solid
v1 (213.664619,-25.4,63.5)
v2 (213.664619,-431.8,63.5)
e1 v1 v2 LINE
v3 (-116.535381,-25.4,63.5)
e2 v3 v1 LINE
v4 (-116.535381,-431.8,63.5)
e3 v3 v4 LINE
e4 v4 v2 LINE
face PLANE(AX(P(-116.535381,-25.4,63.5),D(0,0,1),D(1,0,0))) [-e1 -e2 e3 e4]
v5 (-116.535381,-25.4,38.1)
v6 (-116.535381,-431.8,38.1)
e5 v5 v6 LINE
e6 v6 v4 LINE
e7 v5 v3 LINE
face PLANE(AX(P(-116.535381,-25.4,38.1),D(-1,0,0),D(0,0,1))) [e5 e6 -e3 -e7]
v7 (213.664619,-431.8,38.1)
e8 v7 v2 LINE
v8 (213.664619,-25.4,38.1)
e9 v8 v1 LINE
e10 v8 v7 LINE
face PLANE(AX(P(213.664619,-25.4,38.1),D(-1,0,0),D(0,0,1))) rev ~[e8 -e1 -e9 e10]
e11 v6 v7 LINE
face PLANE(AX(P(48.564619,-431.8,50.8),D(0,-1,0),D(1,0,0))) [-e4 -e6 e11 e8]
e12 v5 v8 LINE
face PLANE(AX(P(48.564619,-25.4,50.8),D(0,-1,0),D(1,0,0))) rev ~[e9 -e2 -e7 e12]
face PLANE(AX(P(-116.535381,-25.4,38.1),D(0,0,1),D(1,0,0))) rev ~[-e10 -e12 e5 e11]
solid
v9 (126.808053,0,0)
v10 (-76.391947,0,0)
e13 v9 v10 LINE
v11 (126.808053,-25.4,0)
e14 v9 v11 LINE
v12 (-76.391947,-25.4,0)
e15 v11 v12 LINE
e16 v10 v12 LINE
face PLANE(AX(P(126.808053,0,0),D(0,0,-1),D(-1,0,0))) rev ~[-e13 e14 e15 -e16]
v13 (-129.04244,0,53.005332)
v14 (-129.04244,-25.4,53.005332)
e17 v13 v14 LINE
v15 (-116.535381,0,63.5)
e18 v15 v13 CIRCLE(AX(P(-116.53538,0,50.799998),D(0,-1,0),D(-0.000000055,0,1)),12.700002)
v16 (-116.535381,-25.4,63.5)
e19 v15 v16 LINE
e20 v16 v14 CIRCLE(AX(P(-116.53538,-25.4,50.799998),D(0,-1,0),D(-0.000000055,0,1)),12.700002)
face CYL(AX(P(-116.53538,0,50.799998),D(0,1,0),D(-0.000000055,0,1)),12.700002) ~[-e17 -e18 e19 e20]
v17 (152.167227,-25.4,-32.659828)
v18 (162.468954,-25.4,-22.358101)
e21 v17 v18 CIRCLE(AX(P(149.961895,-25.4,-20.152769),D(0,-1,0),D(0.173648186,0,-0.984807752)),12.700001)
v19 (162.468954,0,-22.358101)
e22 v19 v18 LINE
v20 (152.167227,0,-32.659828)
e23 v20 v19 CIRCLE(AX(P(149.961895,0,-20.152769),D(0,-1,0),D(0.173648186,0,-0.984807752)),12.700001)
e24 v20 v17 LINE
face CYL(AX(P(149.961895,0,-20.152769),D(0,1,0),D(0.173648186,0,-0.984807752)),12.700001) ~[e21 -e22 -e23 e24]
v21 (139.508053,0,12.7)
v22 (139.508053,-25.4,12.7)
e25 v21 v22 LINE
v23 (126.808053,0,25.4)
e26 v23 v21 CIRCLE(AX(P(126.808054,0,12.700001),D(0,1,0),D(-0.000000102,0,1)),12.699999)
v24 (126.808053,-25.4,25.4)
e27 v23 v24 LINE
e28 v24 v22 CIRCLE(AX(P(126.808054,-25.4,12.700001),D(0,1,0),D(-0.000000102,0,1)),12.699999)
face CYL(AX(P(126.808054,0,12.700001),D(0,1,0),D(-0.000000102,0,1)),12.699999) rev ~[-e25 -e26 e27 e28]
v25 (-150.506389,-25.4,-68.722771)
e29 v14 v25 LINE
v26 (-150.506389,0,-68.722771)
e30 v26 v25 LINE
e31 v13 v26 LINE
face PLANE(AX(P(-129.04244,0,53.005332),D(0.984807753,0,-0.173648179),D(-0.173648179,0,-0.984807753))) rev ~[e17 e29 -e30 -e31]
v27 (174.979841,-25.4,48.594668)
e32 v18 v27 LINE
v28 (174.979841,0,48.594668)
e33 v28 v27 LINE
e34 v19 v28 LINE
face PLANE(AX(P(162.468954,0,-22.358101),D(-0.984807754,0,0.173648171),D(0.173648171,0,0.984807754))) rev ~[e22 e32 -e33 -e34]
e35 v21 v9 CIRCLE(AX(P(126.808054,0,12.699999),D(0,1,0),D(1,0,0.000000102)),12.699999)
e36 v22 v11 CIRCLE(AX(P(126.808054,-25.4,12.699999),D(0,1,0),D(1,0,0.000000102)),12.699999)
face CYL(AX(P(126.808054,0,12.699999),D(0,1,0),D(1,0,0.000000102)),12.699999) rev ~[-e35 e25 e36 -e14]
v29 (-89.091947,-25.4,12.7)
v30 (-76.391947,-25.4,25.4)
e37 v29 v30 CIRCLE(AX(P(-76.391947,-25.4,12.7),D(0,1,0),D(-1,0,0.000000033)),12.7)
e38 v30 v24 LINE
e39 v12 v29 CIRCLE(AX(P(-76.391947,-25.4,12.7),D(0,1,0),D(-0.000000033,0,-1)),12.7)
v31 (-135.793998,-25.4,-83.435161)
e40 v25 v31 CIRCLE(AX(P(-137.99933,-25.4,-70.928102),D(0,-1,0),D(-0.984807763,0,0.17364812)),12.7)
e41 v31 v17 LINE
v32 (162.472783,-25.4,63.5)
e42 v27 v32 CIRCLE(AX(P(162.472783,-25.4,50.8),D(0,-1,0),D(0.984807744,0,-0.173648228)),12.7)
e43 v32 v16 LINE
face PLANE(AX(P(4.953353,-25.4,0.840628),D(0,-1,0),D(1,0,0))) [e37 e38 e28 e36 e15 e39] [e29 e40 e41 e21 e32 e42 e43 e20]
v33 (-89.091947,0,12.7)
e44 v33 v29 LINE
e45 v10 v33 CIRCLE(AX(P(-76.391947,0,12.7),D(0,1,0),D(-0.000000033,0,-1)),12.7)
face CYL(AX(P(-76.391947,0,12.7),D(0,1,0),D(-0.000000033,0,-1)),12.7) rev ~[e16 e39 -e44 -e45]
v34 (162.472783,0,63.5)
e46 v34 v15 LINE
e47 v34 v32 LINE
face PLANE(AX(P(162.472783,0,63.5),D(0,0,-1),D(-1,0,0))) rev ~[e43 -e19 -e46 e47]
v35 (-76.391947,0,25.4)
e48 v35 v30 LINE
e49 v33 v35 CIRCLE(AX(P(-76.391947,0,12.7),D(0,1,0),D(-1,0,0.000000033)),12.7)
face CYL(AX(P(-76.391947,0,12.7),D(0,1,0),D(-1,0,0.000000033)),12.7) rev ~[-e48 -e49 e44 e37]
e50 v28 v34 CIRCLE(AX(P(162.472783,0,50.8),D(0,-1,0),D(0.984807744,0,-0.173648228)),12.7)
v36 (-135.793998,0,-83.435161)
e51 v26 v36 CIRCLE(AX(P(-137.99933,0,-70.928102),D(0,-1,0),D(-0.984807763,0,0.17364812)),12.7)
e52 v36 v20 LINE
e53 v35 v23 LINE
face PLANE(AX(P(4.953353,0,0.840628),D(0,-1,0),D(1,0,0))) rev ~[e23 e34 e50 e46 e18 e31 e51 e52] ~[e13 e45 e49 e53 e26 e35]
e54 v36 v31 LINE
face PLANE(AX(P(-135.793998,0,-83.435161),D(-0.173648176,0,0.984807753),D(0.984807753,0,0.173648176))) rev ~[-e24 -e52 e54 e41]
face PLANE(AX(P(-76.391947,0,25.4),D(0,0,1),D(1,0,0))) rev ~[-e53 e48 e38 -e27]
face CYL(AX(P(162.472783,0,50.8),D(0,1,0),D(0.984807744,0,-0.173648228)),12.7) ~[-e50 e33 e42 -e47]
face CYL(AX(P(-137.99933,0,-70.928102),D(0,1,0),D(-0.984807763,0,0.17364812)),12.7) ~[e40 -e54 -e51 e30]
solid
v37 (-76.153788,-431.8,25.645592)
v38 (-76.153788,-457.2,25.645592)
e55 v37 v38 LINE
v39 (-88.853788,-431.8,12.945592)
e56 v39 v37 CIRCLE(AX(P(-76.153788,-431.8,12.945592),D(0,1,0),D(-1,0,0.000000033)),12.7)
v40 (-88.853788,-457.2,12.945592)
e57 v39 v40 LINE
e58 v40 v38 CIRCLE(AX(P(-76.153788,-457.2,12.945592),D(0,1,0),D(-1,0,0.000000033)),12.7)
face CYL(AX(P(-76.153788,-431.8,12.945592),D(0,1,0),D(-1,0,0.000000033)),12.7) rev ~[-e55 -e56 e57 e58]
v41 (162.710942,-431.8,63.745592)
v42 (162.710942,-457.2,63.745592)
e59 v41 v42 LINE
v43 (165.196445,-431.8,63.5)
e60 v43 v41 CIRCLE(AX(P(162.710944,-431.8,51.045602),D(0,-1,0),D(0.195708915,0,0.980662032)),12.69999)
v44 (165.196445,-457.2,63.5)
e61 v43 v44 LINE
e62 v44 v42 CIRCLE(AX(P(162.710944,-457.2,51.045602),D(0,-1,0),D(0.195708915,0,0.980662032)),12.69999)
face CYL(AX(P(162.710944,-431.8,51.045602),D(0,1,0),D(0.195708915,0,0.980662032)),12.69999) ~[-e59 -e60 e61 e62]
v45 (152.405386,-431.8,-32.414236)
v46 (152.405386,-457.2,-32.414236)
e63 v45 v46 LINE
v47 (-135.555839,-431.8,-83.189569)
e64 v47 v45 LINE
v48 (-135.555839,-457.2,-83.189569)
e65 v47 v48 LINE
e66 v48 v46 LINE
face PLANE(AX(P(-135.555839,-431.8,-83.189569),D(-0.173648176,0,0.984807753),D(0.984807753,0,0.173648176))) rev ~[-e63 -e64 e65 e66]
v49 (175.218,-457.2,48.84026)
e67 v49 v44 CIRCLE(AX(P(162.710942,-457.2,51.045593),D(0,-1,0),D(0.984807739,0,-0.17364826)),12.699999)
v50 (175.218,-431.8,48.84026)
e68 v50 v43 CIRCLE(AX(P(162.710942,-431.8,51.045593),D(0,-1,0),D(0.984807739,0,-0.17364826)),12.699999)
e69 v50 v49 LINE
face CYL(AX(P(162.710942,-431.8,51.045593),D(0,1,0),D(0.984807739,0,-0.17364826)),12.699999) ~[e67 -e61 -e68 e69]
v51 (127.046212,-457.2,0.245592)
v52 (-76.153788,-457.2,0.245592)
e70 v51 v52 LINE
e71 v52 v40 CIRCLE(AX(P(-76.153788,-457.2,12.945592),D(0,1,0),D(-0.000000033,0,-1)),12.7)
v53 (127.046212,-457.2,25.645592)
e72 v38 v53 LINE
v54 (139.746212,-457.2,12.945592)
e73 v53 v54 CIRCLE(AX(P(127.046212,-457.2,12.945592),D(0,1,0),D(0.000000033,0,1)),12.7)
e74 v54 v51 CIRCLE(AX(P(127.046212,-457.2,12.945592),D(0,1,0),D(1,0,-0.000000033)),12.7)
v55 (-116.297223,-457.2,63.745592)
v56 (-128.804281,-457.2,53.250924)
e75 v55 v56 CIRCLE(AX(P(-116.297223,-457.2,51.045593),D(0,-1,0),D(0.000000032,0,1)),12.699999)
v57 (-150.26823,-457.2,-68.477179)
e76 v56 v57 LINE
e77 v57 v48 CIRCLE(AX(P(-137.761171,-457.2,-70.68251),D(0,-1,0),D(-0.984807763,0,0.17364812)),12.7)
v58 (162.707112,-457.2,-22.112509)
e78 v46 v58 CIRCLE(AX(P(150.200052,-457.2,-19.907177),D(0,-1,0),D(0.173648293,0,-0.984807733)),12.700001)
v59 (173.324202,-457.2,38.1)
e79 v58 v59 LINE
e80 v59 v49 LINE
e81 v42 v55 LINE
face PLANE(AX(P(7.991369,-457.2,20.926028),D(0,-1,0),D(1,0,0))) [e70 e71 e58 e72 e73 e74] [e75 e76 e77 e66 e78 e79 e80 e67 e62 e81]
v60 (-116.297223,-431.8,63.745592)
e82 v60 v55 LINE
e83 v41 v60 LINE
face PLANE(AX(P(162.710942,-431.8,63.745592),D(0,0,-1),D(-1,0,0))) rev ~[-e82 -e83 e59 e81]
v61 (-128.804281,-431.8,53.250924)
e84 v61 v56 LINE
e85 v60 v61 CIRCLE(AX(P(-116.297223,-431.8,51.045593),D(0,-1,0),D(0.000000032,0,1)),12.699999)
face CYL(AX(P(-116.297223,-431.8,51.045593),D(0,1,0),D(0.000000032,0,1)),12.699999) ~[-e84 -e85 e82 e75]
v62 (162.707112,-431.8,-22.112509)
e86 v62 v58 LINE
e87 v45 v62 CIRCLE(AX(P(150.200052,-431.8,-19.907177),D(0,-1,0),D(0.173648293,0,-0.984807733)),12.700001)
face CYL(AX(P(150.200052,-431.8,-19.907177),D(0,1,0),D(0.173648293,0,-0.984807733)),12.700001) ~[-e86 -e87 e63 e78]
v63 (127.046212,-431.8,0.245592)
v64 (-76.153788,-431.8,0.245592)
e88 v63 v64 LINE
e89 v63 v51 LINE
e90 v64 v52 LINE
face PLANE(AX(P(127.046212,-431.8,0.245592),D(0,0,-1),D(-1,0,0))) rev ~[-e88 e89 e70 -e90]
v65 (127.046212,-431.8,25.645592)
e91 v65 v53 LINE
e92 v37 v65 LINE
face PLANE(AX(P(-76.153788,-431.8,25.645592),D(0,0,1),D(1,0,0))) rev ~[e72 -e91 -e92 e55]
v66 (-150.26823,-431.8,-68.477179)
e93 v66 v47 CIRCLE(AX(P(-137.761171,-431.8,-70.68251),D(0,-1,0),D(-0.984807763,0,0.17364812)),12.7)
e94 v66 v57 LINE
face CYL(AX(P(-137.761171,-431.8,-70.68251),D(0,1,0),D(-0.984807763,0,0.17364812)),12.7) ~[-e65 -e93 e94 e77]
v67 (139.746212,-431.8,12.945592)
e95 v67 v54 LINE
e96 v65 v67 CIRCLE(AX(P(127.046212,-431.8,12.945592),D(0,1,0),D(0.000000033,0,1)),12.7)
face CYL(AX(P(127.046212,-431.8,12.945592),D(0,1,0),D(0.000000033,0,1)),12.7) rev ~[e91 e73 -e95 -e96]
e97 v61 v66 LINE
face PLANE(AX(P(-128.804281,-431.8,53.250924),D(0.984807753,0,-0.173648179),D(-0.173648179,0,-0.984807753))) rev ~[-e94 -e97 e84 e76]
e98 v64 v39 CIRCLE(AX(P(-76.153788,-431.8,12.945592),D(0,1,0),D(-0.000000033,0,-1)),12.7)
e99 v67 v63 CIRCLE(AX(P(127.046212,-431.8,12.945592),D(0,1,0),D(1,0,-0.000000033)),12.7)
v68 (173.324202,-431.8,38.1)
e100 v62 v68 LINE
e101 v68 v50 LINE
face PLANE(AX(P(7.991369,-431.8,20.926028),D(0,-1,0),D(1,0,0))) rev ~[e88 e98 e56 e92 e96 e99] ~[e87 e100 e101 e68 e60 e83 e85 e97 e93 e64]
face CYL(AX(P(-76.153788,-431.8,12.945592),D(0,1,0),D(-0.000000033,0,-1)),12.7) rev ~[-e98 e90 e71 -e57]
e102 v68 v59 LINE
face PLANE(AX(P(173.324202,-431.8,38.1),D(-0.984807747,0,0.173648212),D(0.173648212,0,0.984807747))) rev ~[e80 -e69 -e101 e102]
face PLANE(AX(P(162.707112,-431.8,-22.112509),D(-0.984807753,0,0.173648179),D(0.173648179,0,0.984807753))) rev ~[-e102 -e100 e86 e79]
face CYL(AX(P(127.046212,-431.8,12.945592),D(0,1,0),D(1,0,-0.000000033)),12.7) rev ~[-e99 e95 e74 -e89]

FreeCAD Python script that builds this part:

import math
import FreeCAD as App
import Part
import Sketcher

V = App.Vector
Q = App.Units.Quantity

doc = App.newDocument("Part")
body = doc.addObject("PartDesign::Body", "Body")

# Sketch on XZ plane
sketch1 = doc.addObject("Sketcher::SketchObject", "Sketch")
body.addObject(sketch1)
sketch1.AttachmentSupport = (doc.XZ_Plane, [""])
sketch1.MapMode = "FlatFace"
sketch1.addGeometry(Part.LineSegment(V(162, 64, 0), V(-117, 64, 0)), False)
sketch1.addGeometry(Part.ArcOfCircle(Part.Circle(V(-117, 51, 0), V(0, 0, 1), 13), math.radians(90), math.radians(170)), False)
sketch1.addGeometry(Part.LineSegment(V(-129, 53, 0), V(-151, -69, 0)), False)
sketch1.addGeometry(Part.ArcOfCircle(Part.Circle(V(-138, -71, 0), V(0, 0, 1), 13), math.radians(170), math.radians(280)), False)
sketch1.addGeometry(Part.LineSegment(V(-136, -83, 0), V(152, -33, 0)), False)
sketch1.addGeometry(Part.ArcOfCircle(Part.Circle(V(150, -20, 0), V(0, 0, 1), 13), math.radians(-80), math.radians(-10)), False)
sketch1.addGeometry(Part.LineSegment(V(162, -22, 0), V(175, 49, 0)), False)
sketch1.addGeometry(Part.ArcOfCircle(Part.Circle(V(162, 51, 0), V(0, 0, 1), 13), math.radians(-10), math.radians(90)), False)
sketch1.addGeometry(Part.ArcOfCircle(Part.Circle(V(-76, 13, 0), V(0, 0, 1), 13), math.radians(-180), math.radians(-90)), False)
sketch1.addGeometry(Part.ArcOfCircle(Part.Circle(V(-76, 13, 0), V(0, 0, 1), 13), math.radians(90), math.radians(180)), False)
sketch1.addGeometry(Part.LineSegment(V(-76, 25, 0), V(127, 25, 0)), False)
sketch1.addGeometry(Part.ArcOfCircle(Part.Circle(V(127, 13, 0), V(0, 0, 1), 13), math.radians(0), math.radians(90)), False)
sketch1.addGeometry(Part.ArcOfCircle(Part.Circle(V(127, 13, 0), V(0, 0, 1), 13), math.radians(-90), math.radians(0)), False)
sketch1.addGeometry(Part.LineSegment(V(127, 0, 0), V(-76, 0, 0)), False)
sketch1.addConstraint(Sketcher.Constraint("Tangent", 0, 2, 1, 1))
sketch1.addConstraint(Sketcher.Constraint("Tangent", 1, 2, 2, 1))
sketch1.addConstraint(Sketcher.Constraint("Tangent", 2, 2, 3, 1))
sketch1.addConstraint(Sketcher.Constraint("Tangent", 3, 2, 4, 1))
sketch1.addConstraint(Sketcher.Constraint("Tangent", 4, 2, 5, 1))
sketch1.addConstraint(Sketcher.Constraint("Tangent", 5, 2, 6, 1))
sketch1.addConstraint(Sketcher.Constraint("Tangent", 6, 2, 7, 1))
sketch1.addConstraint(Sketcher.Constraint("Tangent", 7, 2, 0, 1))
sketch1.addConstraint(Sketcher.Constraint("Tangent", 8, 1, 9, 2))
sketch1.addConstraint(Sketcher.Constraint("Tangent", 9, 1, 10, 1))
sketch1.addConstraint(Sketcher.Constraint("Tangent", 10, 2, 11, 2))
sketch1.addConstraint(Sketcher.Constraint("Tangent", 11, 1, 12, 2))
sketch1.addConstraint(Sketcher.Constraint("Tangent", 12, 1, 13, 1))
sketch1.addConstraint(Sketcher.Constraint("Tangent", 13, 2, 8, 2))
sketch1.addConstraint(Sketcher.Constraint("Horizontal", 0))
sketch1.addConstraint(Sketcher.Constraint("Horizontal", 10))
sketch1.addConstraint(Sketcher.Constraint("Horizontal", 13))
sketch1.addConstraint(Sketcher.Constraint("Equal", 1, 3))
sketch1.addConstraint(Sketcher.Constraint("Equal", 3, 5))
sketch1.addConstraint(Sketcher.Constraint("Equal", 5, 7))
sketch1.addConstraint(Sketcher.Constraint("Equal", 7, 8))
sketch1.addConstraint(Sketcher.Constraint("Equal", 8, 9))
sketch1.addConstraint(Sketcher.Constraint("Equal", 9, 11))
sketch1.addConstraint(Sketcher.Constraint("PointOnObject", 12, 1, -1))
sketch1.addConstraint(Sketcher.Constraint("Parallel", 2, 6))
sketch1.addConstraint(Sketcher.Constraint("Horizontal", 12, 3, 8, 1))
sketch1.addConstraint(Sketcher.Constraint("Horizontal", 8, 1, 11, 1))
sketch1.addConstraint(Sketcher.Constraint("Radius", 1, Q("0.5000001 in")))
sketch1.addConstraint(Sketcher.Constraint("DistanceX", 10, 1, 10, 2, Q("8 in")))
sketch1.addConstraint(Sketcher.Constraint("DistanceY", -1, 1, 1, 3, Q("1.9999999 in")))
sketch1.addConstraint(Sketcher.Constraint("Angle", 2, Q("-100 deg")))
sketch1.addConstraint(Sketcher.Constraint("Angle", 4, Q("10 deg")))
sketch1.addConstraint(Sketcher.Constraint("DistanceY", 5, 2, -1, 1, 22.358101))
sketch1.addConstraint(Sketcher.Constraint("DistanceY", 3, 3, 1, 3, 121.728101))
sketch1.addConstraint(Sketcher.Constraint("DistanceX", 12, 3, 5, 2, 35.6609))
sketch1.addConstraint(Sketcher.Constraint("DistanceX", 1, 3, -1, 1, 116.53538))
pad1 = doc.addObject("PartDesign::Pad", "Pad")
body.addObject(pad1)
pad1.Profile = sketch1
pad1.Length = Q("1 in")
body2 = doc.addObject("PartDesign::Body", "Body001")

# Sketch on XZ plane
sketch2 = doc.addObject("Sketcher::SketchObject", "Sketch001")
body2.addObject(sketch2)
sketch2.AttachmentSupport = (doc.getObject("XZ_Plane001"), [""])
sketch2.MapMode = "FlatFace"
sketch2.AttachmentOffset = App.Placement(V(0, 0, 1 * 25.4), App.Rotation())
sketch2.addGeometry(Part.LineSegment(V(-117, 64, 0), V(-117, 38, 0)), False)
sketch2.addGeometry(Part.LineSegment(V(-117, 38, 0), V(214, 38, 0)), False)
sketch2.addGeometry(Part.LineSegment(V(214, 38, 0), V(214, 64, 0)), False)
sketch2.addGeometry(Part.LineSegment(V(214, 64, 0), V(-117, 64, 0)), False)
sketch2.addConstraint(Sketcher.Constraint("Coincident", 0, 2, 1, 1))
sketch2.addConstraint(Sketcher.Constraint("Coincident", 1, 2, 2, 1))
sketch2.addConstraint(Sketcher.Constraint("Coincident", 2, 2, 3, 1))
sketch2.addConstraint(Sketcher.Constraint("Coincident", 3, 2, 0, 1))
sketch2.addConstraint(Sketcher.Constraint("Vertical", 0))
sketch2.addConstraint(Sketcher.Constraint("Horizontal", 1))
sketch2.addConstraint(Sketcher.Constraint("Vertical", 2))
sketch2.addConstraint(Sketcher.Constraint("Horizontal", 3))
sketch2.addConstraint(Sketcher.Constraint("DistanceX", 1, 1, 1, 2, Q("13 in")))
sketch2.addConstraint(Sketcher.Constraint("DistanceY", 0, 2, 0, 1, Q("1 in")))
sketch2.addConstraint(Sketcher.Constraint("DistanceY", -1, 1, 0, 2, Q("1.5 in")))
sketch2.addConstraint(Sketcher.Constraint("DistanceX", 0, 2, -1, 1, 116.535381))
pad2 = doc.addObject("PartDesign::Pad", "Pad001")
body2.addObject(pad2)
pad2.Profile = sketch2
pad2.Length = Q("16 in")
body3 = doc.addObject("PartDesign::Body", "Body002")

# Sketch on XZ plane
sketch3 = doc.addObject("Sketcher::SketchObject", "Sketch002")
body3.addObject(sketch3)
sketch3.AttachmentSupport = (doc.getObject("XZ_Plane002"), [""])
sketch3.MapMode = "FlatFace"
sketch3.AttachmentOffset = App.Placement(V(0, 0, 17 * 25.4), App.Rotation())
sketch3.addGeometry(Part.LineSegment(V(162.7, 63.7, 0), V(-116.3, 63.7, 0)), False)
sketch3.addGeometry(Part.ArcOfCircle(Part.Circle(V(-116.3, 51, 0), V(0, 0, 1), 12.7), math.radians(90), math.radians(170)), False)
sketch3.addGeometry(Part.LineSegment(V(-128.8, 53.3, 0), V(-150.3, -68.5, 0)), False)
sketch3.addGeometry(Part.ArcOfCircle(Part.Circle(V(-137.8, -70.7, 0), V(0, 0, 1), 12.7), math.radians(170), math.radians(280)), False)
sketch3.addGeometry(Part.LineSegment(V(-135.6, -83.2, 0), V(152.4, -32.4, 0)), False)
sketch3.addGeometry(Part.ArcOfCircle(Part.Circle(V(150.2, -19.9, 0), V(0, 0, 1), 12.7), math.radians(-80), math.radians(-10)), False)
sketch3.addGeometry(Part.LineSegment(V(162.7, -22.1, 0), V(173.3, 38.1, 0)), False)
sketch3.addGeometry(Part.LineSegment(V(173.3, 38.1, 0), V(175.2, 48.8, 0)), False)
sketch3.addGeometry(Part.ArcOfCircle(Part.Circle(V(162.7, 51, 0), V(0, 0, 1), 12.7), math.radians(-10), math.radians(79)), False)
sketch3.addGeometry(Part.ArcOfCircle(Part.Circle(V(162.7, 51, 0), V(0, 0, 1), 12.7), math.radians(78.71), math.radians(90)), False)
sketch3.addGeometry(Part.ArcOfCircle(Part.Circle(V(-76.2, 12.9, 0), V(0, 0, 1), 12.7), math.radians(-180), math.radians(-90)), False)
sketch3.addGeometry(Part.ArcOfCircle(Part.Circle(V(-76.2, 12.9, 0), V(0, 0, 1), 12.7), math.radians(90), math.radians(180)), False)
sketch3.addGeometry(Part.LineSegment(V(-76.2, 25.6, 0), V(127, 25.6, 0)), False)
sketch3.addGeometry(Part.ArcOfCircle(Part.Circle(V(127, 12.9, 0), V(0, 0, 1), 12.7), math.radians(0), math.radians(90)), False)
sketch3.addGeometry(Part.ArcOfCircle(Part.Circle(V(127, 12.9, 0), V(0, 0, 1), 12.7), math.radians(-90), math.radians(0)), False)
sketch3.addGeometry(Part.LineSegment(V(127, 0.2, 0), V(-76.2, 0.2, 0)), False)
sketch3.addConstraint(Sketcher.Constraint("Tangent", 0, 2, 1, 1))
sketch3.addConstraint(Sketcher.Constraint("Tangent", 1, 2, 2, 1))
sketch3.addConstraint(Sketcher.Constraint("Tangent", 2, 2, 3, 1))
sketch3.addConstraint(Sketcher.Constraint("Tangent", 3, 2, 4, 1))
sketch3.addConstraint(Sketcher.Constraint("Tangent", 4, 2, 5, 1))
sketch3.addConstraint(Sketcher.Constraint("Tangent", 5, 2, 6, 1))
sketch3.addConstraint(Sketcher.Constraint("Coincident", 6, 2, 7, 1))
sketch3.addConstraint(Sketcher.Constraint("Tangent", 7, 2, 8, 1))
sketch3.addConstraint(Sketcher.Constraint("Tangent", 8, 2, 9, 1))
sketch3.addConstraint(Sketcher.Constraint("Tangent", 9, 2, 0, 1))
sketch3.addConstraint(Sketcher.Constraint("Tangent", 10, 1, 11, 2))
sketch3.addConstraint(Sketcher.Constraint("Tangent", 11, 1, 12, 1))
sketch3.addConstraint(Sketcher.Constraint("Tangent", 12, 2, 13, 2))
sketch3.addConstraint(Sketcher.Constraint("Tangent", 13, 1, 14, 2))
sketch3.addConstraint(Sketcher.Constraint("Tangent", 14, 1, 15, 1))
sketch3.addConstraint(Sketcher.Constraint("Tangent", 15, 2, 10, 2))
sketch3.addConstraint(Sketcher.Constraint("Horizontal", 0))
sketch3.addConstraint(Sketcher.Constraint("Horizontal", 12))
sketch3.addConstraint(Sketcher.Constraint("Horizontal", 15))
sketch3.addConstraint(Sketcher.Constraint("Equal", 1, 3))
sketch3.addConstraint(Sketcher.Constraint("Equal", 3, 5))
sketch3.addConstraint(Sketcher.Constraint("Equal", 5, 8))
sketch3.addConstraint(Sketcher.Constraint("Equal", 8, 10))
sketch3.addConstraint(Sketcher.Constraint("Equal", 10, 11))
sketch3.addConstraint(Sketcher.Constraint("Equal", 11, 13))
sketch3.addConstraint(Sketcher.Constraint("Parallel", 2, 6))
sketch3.addConstraint(Sketcher.Constraint("Parallel", 6, 7))
sketch3.addConstraint(Sketcher.Constraint("Horizontal", 1, 3, 8, 3))
sketch3.addConstraint(Sketcher.Constraint("Horizontal", 14, 3, 10, 1))
sketch3.addConstraint(Sketcher.Constraint("Horizontal", 10, 1, 13, 1))
sketch3.addConstraint(Sketcher.Constraint("Radius", 1, Q("0.5 in")))
sketch3.addConstraint(Sketcher.Constraint("DistanceX", 12, 1, 12, 2, Q("8 in")))
sketch3.addConstraint(Sketcher.Constraint("Angle", 2, Q("-100 deg")))
sketch3.addConstraint(Sketcher.Constraint("Angle", 4, Q("10 deg")))
sketch3.addConstraint(Sketcher.Constraint("DistanceY", 10, 3, 0, 2, Q("2 in")))
sketch3.addConstraint(Sketcher.Constraint("DistanceY", 6, 2, 8, 2, Q("1 in")))
sketch3.addConstraint(Sketcher.Constraint("DistanceY", -1, 1, 6, 2, Q("1.5 in")))
sketch3.addConstraint(Sketcher.Constraint("DistanceX", -1, 1, 7, 2, 175.218))
sketch3.addConstraint(Sketcher.Constraint("DistanceY", 3, 3, 11, 3, 83.628102))
sketch3.addConstraint(Sketcher.Constraint("DistanceX", 13, 3, 5, 2, 35.6609))
sketch3.addConstraint(Sketcher.Constraint("DistanceY", 5, 2, 13, 3, 35.058101))
sketch3.addConstraint(Sketcher.Constraint("DistanceX", 9, 3, 8, 2, 2.485501))
pad3 = doc.addObject("PartDesign::Pad", "Pad002")
body3.addObject(pad3)
pad3.Profile = sketch3
pad3.Length = Q("1 in")

doc.recompute()
